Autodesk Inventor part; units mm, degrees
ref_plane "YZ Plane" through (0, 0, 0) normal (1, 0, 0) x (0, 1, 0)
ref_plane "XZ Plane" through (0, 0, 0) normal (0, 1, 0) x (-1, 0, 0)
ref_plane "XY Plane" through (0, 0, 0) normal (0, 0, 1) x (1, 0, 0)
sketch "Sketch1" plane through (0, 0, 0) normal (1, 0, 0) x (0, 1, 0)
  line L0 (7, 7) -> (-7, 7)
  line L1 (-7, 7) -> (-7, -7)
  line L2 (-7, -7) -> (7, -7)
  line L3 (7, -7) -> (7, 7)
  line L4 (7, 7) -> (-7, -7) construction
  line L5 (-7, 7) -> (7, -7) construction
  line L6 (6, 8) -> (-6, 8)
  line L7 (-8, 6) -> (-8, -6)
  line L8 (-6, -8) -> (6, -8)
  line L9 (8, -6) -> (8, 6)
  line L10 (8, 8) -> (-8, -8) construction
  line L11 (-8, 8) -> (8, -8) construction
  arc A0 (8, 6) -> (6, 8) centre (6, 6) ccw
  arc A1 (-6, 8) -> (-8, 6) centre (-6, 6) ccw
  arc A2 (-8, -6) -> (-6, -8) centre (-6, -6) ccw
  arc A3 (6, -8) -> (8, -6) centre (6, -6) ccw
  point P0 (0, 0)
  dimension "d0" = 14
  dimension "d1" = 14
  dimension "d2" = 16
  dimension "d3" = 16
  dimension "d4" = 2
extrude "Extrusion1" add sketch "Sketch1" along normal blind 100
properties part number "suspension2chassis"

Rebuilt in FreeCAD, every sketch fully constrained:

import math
import FreeCAD as App
import Part
import Sketcher

doc = App.newDocument("Part")
body = doc.addObject("PartDesign::Body", "Body")

sketch1 = body.newObject("Sketcher::SketchObject", "Sketch")
sketch1.AttachmentSupport = (doc.getObject("YZ_Plane"), [""])
sketch1.MapMode = "FlatFace"
sketch1.addGeometry(Part.ArcOfCircle(Part.Circle(App.Vector(6, 6, 0), App.Vector(0, 0, 1), 2), math.radians(0), math.radians(90)), False)
sketch1.addGeometry(Part.LineSegment(App.Vector(6, 8, 0), App.Vector(-6, 8, 0)), False)
sketch1.addGeometry(Part.ArcOfCircle(Part.Circle(App.Vector(-6, 6, 0), App.Vector(0, 0, 1), 2), math.radians(90), math.radians(180)), False)
sketch1.addGeometry(Part.LineSegment(App.Vector(-8, 6, 0), App.Vector(-8, -6, 0)), False)
sketch1.addGeometry(Part.ArcOfCircle(Part.Circle(App.Vector(-6, -6, 0), App.Vector(0, 0, 1), 2), math.radians(180), math.radians(270)), False)
sketch1.addGeometry(Part.LineSegment(App.Vector(-6, -8, 0), App.Vector(6, -8, 0)), False)
sketch1.addGeometry(Part.ArcOfCircle(Part.Circle(App.Vector(6, -6, 0), App.Vector(0, 0, 1), 2), math.radians(-90), math.radians(0)), False)
sketch1.addGeometry(Part.LineSegment(App.Vector(8, -6, 0), App.Vector(8, 6, 0)), False)
sketch1.addGeometry(Part.LineSegment(App.Vector(-7, 7, 0), App.Vector(7, 7, 0)), False)
sketch1.addGeometry(Part.LineSegment(App.Vector(7, 7, 0), App.Vector(7, -7, 0)), False)
sketch1.addGeometry(Part.LineSegment(App.Vector(7, -7, 0), App.Vector(-7, -7, 0)), False)
sketch1.addGeometry(Part.LineSegment(App.Vector(-7, -7, 0), App.Vector(-7, 7, 0)), False)
sketch1.addConstraint(Sketcher.Constraint("Tangent", 0, 2, 1, 1))
sketch1.addConstraint(Sketcher.Constraint("Tangent", 1, 2, 2, 1))
sketch1.addConstraint(Sketcher.Constraint("Tangent", 2, 2, 3, 1))
sketch1.addConstraint(Sketcher.Constraint("Tangent", 3, 2, 4, 1))
sketch1.addConstraint(Sketcher.Constraint("Tangent", 4, 2, 5, 1))
sketch1.addConstraint(Sketcher.Constraint("Tangent", 5, 2, 6, 1))
sketch1.addConstraint(Sketcher.Constraint("Tangent", 6, 2, 7, 1))
sketch1.addConstraint(Sketcher.Constraint("Tangent", 7, 2, 0, 1))
sketch1.addConstraint(Sketcher.Constraint("Coincident", 8, 2, 9, 1))
sketch1.addConstraint(Sketcher.Constraint("Coincident", 9, 2, 10, 1))
sketch1.addConstraint(Sketcher.Constraint("Coincident", 10, 2, 11, 1))
sketch1.addConstraint(Sketcher.Constraint("Coincident", 11, 2, 8, 1))
sketch1.addConstraint(Sketcher.Constraint("Horizontal", 1))
sketch1.addConstraint(Sketcher.Constraint("Vertical", 3))
sketch1.addConstraint(Sketcher.Constraint("Horizontal", 5))
sketch1.addConstraint(Sketcher.Constraint("Vertical", 7))
sketch1.addConstraint(Sketcher.Constraint("Horizontal", 8))
sketch1.addConstraint(Sketcher.Constraint("Vertical", 9))
sketch1.addConstraint(Sketcher.Constraint("Horizontal", 10))
sketch1.addConstraint(Sketcher.Constraint("Vertical", 11))
sketch1.addConstraint(Sketcher.Constraint("Equal", 0, 2))
sketch1.addConstraint(Sketcher.Constraint("Equal", 2, 4))
sketch1.addConstraint(Sketcher.Constraint("Equal", 4, 6))
sketch1.addConstraint(Sketcher.Constraint("Symmetric", 0, 3, 4, 3, -1, 1))
sketch1.addConstraint(Sketcher.Constraint("Symmetric", 8, 2, 10, 2, -1, 1))
sketch1.addConstraint(Sketcher.Constraint("Equal", 5, 3))
sketch1.addConstraint(Sketcher.Constraint("Equal", 10, 9))
sketch1.addConstraint(Sketcher.Constraint("Radius", 0, 2.0))
sketch1.addConstraint(Sketcher.Constraint("DistanceX", 8, 1, 8, 2, 14.0))
sketch1.addConstraint(Sketcher.Constraint("DistanceY", 6, 3, 0, 2, 14.0))
pad1 = body.newObject("PartDesign::Pad", "Pad")
pad1.Profile = sketch1
pad1.Length = 100

doc.recompute()
